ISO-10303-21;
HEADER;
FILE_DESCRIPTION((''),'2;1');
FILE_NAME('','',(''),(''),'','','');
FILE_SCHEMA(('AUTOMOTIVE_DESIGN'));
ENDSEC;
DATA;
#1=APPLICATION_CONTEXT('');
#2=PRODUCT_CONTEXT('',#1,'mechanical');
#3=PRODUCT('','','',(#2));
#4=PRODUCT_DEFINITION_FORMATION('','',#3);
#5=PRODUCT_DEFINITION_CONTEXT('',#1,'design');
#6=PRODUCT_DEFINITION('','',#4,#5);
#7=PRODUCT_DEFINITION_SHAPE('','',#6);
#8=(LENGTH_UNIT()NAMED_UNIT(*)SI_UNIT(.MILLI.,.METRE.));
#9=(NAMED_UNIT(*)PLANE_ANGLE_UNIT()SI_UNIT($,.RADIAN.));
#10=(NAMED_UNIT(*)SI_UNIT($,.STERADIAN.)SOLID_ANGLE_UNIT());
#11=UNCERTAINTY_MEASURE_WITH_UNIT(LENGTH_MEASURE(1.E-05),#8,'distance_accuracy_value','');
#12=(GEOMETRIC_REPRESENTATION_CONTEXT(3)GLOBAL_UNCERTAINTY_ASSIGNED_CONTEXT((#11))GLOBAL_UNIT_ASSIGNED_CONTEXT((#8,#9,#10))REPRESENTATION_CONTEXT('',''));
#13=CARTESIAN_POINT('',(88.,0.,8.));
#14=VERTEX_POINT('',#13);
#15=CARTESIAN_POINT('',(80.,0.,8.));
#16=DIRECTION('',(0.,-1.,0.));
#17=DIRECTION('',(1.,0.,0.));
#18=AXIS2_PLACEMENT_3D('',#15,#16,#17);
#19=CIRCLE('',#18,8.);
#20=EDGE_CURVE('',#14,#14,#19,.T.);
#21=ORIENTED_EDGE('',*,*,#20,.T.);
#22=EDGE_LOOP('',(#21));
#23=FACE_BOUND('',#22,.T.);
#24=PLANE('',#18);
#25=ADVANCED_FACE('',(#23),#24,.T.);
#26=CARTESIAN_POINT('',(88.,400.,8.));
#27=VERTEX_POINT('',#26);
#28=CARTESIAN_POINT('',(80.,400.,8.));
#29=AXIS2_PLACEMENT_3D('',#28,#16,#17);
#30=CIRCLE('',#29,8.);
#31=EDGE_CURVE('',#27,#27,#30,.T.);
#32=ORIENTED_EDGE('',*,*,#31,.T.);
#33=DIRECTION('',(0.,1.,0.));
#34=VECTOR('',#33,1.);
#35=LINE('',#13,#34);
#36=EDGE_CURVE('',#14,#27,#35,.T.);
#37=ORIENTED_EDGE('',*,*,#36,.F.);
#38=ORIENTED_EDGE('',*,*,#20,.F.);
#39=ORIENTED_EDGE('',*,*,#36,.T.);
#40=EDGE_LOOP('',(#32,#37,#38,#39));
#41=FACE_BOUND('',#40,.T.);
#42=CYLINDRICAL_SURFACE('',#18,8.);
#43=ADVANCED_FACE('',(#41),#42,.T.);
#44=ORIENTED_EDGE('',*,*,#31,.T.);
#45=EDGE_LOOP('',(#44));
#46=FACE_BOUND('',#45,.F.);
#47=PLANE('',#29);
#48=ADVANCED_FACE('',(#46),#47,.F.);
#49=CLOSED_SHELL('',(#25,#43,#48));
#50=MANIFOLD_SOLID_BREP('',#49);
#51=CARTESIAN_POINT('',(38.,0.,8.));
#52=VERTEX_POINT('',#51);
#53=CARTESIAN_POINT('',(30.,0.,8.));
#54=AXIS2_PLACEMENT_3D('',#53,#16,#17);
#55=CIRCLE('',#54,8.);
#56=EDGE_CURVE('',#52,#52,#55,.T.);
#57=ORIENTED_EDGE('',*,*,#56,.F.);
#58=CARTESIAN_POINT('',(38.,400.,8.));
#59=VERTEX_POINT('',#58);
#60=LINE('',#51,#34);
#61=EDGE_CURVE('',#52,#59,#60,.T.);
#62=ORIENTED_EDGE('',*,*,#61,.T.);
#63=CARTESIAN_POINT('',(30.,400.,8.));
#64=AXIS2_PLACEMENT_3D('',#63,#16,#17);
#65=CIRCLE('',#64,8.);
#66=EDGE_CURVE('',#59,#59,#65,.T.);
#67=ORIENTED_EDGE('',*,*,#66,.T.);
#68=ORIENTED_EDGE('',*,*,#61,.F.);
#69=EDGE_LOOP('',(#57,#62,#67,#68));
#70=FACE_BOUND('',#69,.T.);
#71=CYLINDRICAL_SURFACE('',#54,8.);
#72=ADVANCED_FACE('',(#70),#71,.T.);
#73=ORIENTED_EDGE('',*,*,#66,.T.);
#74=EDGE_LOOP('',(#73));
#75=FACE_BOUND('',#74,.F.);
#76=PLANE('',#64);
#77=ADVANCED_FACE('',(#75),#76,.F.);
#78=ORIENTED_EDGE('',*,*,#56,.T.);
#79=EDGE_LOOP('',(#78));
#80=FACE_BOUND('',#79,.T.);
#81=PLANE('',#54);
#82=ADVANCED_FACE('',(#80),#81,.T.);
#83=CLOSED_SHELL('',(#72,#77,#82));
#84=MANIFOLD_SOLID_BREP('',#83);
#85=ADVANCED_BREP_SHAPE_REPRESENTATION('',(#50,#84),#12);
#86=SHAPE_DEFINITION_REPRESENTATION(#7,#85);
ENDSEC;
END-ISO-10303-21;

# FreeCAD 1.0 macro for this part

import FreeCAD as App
import Part
import Sketcher
from FreeCAD import Vector
Q = App.Units.Quantity

doc = App.newDocument("Part")
params = doc.addObject("Spreadsheet::Sheet", "Params")
for row, (alias, value) in enumerate([
    ("sketch1_diameter", "16 mm"),
    ("pad1_length", "400 mm"),
    ("sketch2_diameter", "16 mm"),
    ("pad2_length", "400 mm"),
], start=1):
    params.set(f"A{row}", alias)
    params.set(f"B{row}", "=" + value)
    params.setAlias(f"B{row}", alias)

body = doc.addObject("PartDesign::Body", "Body")

# Sketch on XZ plane
sketch1 = body.newObject("Sketcher::SketchObject", "Sketch")
sketch1.AttachmentSupport = (doc.getObject("XZ_Plane"), [""])
sketch1.MapMode = "FlatFace"
sketch1.addGeometry(Part.Circle(Vector(30, 8, 0), Vector(0, 0, 1), 8), False)
sketch1.addConstraint([
    Sketcher.Constraint("Diameter", 0, Q("16 mm")),
    Sketcher.Constraint("DistanceX", -1, 1, 0, 3, Q("30 mm")),
    Sketcher.Constraint("DistanceY", -1, 1, 0, 3, Q("8 mm")),
])
sketch1.setExpression("Constraints[0]", "Params.sketch1_diameter")
pad1 = body.newObject("PartDesign::Pad", "Pad")
pad1.Profile = sketch1
pad1.setExpression("Length", "Params.pad1_length")
pad1.Reversed = True
body2 = doc.addObject("PartDesign::Body", "Body001")

# Sketch on XZ plane
sketch2 = body2.newObject("Sketcher::SketchObject", "Sketch001")
sketch2.AttachmentSupport = (doc.getObject("XZ_Plane001"), [""])
sketch2.MapMode = "FlatFace"
sketch2.addGeometry(Part.Circle(Vector(80, 8, 0), Vector(0, 0, 1), 8), False)
sketch2.addConstraint([
    Sketcher.Constraint("Diameter", 0, Q("16 mm")),
    Sketcher.Constraint("DistanceX", -1, 1, 0, 3, Q("80 mm")),
    Sketcher.Constraint("DistanceY", -1, 1, 0, 3, Q("8 mm")),
])
sketch2.setExpression("Constraints[0]", "Params.sketch2_diameter")
pad2 = body2.newObject("PartDesign::Pad", "Pad001")
pad2.Profile = sketch2
pad2.setExpression("Length", "Params.pad2_length")
pad2.Reversed = True

doc.recompute()
